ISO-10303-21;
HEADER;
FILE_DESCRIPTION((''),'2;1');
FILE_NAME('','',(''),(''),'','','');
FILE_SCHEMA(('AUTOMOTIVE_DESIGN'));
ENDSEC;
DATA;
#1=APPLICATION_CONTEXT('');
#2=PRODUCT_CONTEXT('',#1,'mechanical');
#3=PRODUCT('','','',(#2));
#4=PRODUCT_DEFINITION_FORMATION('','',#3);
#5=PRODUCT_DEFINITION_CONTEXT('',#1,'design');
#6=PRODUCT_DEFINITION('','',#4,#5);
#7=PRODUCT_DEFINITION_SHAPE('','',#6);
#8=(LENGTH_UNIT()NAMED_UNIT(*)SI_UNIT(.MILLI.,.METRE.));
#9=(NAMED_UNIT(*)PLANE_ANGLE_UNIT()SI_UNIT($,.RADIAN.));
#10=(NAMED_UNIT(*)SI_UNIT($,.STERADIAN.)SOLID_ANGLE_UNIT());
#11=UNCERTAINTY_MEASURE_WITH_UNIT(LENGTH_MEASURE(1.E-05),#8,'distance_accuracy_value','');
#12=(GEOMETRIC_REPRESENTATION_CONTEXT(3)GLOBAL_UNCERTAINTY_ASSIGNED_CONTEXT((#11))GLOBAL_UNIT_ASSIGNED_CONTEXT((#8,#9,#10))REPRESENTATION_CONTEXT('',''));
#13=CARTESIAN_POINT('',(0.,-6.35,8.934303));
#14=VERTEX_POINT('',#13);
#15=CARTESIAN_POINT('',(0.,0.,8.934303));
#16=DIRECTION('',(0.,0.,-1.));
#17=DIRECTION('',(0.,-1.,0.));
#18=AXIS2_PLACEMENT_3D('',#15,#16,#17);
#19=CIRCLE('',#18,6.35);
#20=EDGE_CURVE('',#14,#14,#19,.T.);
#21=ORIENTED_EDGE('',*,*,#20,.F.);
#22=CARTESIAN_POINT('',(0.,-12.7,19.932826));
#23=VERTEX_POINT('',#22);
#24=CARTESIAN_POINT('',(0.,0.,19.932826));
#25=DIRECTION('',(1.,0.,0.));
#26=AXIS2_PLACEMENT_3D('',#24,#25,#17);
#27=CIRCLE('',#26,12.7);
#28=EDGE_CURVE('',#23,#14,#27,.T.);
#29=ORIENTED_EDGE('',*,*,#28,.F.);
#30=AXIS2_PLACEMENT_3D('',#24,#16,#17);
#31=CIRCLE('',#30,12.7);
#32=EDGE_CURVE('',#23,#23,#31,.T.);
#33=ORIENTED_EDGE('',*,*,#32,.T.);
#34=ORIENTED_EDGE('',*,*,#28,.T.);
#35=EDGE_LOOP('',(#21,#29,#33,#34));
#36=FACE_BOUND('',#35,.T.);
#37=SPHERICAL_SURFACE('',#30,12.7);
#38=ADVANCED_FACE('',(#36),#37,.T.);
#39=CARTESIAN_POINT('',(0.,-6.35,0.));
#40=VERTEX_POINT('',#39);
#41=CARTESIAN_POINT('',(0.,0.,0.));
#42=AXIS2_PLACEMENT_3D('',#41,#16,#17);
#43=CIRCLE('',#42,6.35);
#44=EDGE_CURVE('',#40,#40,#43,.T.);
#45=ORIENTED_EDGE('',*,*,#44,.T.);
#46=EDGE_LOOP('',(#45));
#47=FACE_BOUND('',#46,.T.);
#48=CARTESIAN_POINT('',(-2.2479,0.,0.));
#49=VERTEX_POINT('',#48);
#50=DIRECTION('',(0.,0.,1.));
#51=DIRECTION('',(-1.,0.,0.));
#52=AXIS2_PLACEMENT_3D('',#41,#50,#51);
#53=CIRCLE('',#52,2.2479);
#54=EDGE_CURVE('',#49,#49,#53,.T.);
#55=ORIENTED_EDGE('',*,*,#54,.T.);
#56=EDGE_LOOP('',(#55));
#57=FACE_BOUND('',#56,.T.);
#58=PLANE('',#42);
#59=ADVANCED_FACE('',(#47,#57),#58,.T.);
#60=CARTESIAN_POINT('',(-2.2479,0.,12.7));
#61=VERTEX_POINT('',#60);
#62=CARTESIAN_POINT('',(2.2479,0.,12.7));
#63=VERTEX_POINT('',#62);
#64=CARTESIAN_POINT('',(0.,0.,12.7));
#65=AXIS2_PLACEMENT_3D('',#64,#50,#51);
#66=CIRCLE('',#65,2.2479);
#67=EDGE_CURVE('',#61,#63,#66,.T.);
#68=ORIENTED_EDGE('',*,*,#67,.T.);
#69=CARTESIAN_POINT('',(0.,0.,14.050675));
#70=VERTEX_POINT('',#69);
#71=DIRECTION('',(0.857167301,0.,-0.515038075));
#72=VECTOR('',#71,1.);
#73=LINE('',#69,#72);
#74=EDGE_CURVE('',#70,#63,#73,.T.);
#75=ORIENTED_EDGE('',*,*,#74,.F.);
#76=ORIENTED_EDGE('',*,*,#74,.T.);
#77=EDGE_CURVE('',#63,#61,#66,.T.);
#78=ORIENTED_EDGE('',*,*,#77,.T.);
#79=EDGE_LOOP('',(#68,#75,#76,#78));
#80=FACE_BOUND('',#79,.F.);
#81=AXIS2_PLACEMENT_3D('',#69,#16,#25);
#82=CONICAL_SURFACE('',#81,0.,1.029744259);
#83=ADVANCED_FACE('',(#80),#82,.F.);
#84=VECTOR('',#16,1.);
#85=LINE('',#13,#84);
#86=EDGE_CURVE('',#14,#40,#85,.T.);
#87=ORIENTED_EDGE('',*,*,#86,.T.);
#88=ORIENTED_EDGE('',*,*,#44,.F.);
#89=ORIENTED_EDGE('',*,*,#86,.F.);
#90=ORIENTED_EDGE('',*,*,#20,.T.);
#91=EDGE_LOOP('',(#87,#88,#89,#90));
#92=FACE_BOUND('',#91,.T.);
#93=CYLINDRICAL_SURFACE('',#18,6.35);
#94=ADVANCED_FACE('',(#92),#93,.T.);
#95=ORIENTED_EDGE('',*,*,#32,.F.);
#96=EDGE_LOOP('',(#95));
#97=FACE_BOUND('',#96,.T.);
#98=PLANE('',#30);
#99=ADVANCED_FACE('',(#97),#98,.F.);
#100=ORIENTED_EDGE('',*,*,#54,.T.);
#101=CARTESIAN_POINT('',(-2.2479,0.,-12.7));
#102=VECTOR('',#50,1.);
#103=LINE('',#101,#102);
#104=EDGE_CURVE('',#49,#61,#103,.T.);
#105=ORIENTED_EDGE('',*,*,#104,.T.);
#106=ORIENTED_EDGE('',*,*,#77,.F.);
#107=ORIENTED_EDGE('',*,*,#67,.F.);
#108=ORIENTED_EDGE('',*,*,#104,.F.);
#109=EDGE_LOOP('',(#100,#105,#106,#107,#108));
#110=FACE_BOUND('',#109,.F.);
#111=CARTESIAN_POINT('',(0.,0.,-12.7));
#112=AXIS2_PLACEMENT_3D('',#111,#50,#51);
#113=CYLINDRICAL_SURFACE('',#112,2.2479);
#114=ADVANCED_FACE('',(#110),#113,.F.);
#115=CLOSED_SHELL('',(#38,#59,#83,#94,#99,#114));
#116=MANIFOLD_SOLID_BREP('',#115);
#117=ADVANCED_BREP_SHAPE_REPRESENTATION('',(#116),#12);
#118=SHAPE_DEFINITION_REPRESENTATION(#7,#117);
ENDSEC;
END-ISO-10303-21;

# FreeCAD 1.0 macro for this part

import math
import FreeCAD as App
import Part
import Sketcher
Q = App.Units.Quantity

doc = App.newDocument("Part")
params = doc.addObject("Spreadsheet::Sheet", "Params")
for row, (alias, value) in enumerate([
    ("sketch1_radius", "0.5 in"),
    ("sketch1_width", "0.25 in"),
    ("revolution_angle", "360 deg"),
    ("sketch2_diameter", "0.177 in"),
    ("hole_diameter", "0.177 in"),
    ("hole_depth", "0.5 in"),
], start=1):
    params.set(f"A{row}", alias)
    params.set(f"B{row}", "=" + value)
    params.setAlias(f"B{row}", alias)

body = doc.addObject("PartDesign::Body", "Body")

# Sketch on YZ plane
sketch1 = doc.addObject("Sketcher::SketchObject", "Sketch")
body.addObject(sketch1)
sketch1.AttachmentSupport = (doc.YZ_Plane, [""])
sketch1.MapMode = "FlatFace"
sketch1.addGeometry(Part.LineSegment(App.Vector(-6, 0, 0), App.Vector(0, 0, 0)), False)
sketch1.addGeometry(Part.LineSegment(App.Vector(0, 0, 0), App.Vector(0, 20, 0)), False)
sketch1.addGeometry(Part.LineSegment(App.Vector(0, 20, 0), App.Vector(-13, 20, 0)), False)
sketch1.addGeometry(Part.ArcOfCircle(Part.Circle(App.Vector(0, 20, 0), App.Vector(0, 0, 1), 13), math.radians(180), math.radians(240)), False)
sketch1.addGeometry(Part.LineSegment(App.Vector(-6, 9, 0), App.Vector(-6, 0, 0)), False)
sketch1.addConstraint(Sketcher.Constraint("Coincident", 0, 2, 1, 1))
sketch1.addConstraint(Sketcher.Constraint("Coincident", 1, 2, 2, 1))
sketch1.addConstraint(Sketcher.Constraint("Coincident", 2, 2, 3, 1))
sketch1.addConstraint(Sketcher.Constraint("Coincident", 3, 2, 4, 1))
sketch1.addConstraint(Sketcher.Constraint("Coincident", 4, 2, 0, 1))
sketch1.addConstraint(Sketcher.Constraint("Horizontal", 0))
sketch1.addConstraint(Sketcher.Constraint("Vertical", 1))
sketch1.addConstraint(Sketcher.Constraint("Horizontal", 2))
sketch1.addConstraint(Sketcher.Constraint("Vertical", 4))
sketch1.addConstraint(Sketcher.Constraint("Coincident", 0, 2, -1, 1))
sketch1.addConstraint(Sketcher.Constraint("Coincident", 1, 2, 3, 3))
sketch1.addConstraint(Sketcher.Constraint("Radius", 3, Q("0.5 in")))
sketch1.addConstraint(Sketcher.Constraint("DistanceX", 0, 1, 0, 2, Q("0.25 in")))
sketch1.addConstraint(Sketcher.Constraint("DistanceY", 1, 1, 1, 2, 19.932826))
sketch1.setExpression("Constraints[11]", "Params.sketch1_radius")
sketch1.setExpression("Constraints[12]", "Params.sketch1_width")
revolution = doc.addObject("PartDesign::Revolution", "Revolution")
body.addObject(revolution)
revolution.Profile = sketch1
revolution.ReferenceAxis = (sketch1, ["V_Axis"])
revolution.setExpression("Angle", "Params.revolution_angle")

# Sketch on XY plane
sketch2 = doc.addObject("Sketcher::SketchObject", "Sketch001")
body.addObject(sketch2)
sketch2.AttachmentSupport = (doc.XY_Plane, [""])
sketch2.MapMode = "FlatFace"
sketch2.addGeometry(Part.Circle(App.Vector(0, 0, 0), App.Vector(0, 0, 1), 2.2), False)
sketch2.addConstraint(Sketcher.Constraint("Coincident", 0, 3, -1, 1))
sketch2.addConstraint(Sketcher.Constraint("Diameter", 0, Q("0.177 in")))
sketch2.setExpression("Constraints[1]", "Params.sketch2_diameter")
doc.recompute()
hole = doc.addObject("PartDesign::Hole", "Hole")
body.addObject(hole)
hole.Profile = sketch2
hole.ThreadType = "None"
hole.setExpression("Diameter", "Params.hole_diameter")
hole.DepthType = "Dimension"
hole.setExpression("Depth", "Params.hole_depth")
hole.DrillPoint = "Angled"
hole.DrillPointAngle = 118
hole.Reversed = True

doc.recompute()
